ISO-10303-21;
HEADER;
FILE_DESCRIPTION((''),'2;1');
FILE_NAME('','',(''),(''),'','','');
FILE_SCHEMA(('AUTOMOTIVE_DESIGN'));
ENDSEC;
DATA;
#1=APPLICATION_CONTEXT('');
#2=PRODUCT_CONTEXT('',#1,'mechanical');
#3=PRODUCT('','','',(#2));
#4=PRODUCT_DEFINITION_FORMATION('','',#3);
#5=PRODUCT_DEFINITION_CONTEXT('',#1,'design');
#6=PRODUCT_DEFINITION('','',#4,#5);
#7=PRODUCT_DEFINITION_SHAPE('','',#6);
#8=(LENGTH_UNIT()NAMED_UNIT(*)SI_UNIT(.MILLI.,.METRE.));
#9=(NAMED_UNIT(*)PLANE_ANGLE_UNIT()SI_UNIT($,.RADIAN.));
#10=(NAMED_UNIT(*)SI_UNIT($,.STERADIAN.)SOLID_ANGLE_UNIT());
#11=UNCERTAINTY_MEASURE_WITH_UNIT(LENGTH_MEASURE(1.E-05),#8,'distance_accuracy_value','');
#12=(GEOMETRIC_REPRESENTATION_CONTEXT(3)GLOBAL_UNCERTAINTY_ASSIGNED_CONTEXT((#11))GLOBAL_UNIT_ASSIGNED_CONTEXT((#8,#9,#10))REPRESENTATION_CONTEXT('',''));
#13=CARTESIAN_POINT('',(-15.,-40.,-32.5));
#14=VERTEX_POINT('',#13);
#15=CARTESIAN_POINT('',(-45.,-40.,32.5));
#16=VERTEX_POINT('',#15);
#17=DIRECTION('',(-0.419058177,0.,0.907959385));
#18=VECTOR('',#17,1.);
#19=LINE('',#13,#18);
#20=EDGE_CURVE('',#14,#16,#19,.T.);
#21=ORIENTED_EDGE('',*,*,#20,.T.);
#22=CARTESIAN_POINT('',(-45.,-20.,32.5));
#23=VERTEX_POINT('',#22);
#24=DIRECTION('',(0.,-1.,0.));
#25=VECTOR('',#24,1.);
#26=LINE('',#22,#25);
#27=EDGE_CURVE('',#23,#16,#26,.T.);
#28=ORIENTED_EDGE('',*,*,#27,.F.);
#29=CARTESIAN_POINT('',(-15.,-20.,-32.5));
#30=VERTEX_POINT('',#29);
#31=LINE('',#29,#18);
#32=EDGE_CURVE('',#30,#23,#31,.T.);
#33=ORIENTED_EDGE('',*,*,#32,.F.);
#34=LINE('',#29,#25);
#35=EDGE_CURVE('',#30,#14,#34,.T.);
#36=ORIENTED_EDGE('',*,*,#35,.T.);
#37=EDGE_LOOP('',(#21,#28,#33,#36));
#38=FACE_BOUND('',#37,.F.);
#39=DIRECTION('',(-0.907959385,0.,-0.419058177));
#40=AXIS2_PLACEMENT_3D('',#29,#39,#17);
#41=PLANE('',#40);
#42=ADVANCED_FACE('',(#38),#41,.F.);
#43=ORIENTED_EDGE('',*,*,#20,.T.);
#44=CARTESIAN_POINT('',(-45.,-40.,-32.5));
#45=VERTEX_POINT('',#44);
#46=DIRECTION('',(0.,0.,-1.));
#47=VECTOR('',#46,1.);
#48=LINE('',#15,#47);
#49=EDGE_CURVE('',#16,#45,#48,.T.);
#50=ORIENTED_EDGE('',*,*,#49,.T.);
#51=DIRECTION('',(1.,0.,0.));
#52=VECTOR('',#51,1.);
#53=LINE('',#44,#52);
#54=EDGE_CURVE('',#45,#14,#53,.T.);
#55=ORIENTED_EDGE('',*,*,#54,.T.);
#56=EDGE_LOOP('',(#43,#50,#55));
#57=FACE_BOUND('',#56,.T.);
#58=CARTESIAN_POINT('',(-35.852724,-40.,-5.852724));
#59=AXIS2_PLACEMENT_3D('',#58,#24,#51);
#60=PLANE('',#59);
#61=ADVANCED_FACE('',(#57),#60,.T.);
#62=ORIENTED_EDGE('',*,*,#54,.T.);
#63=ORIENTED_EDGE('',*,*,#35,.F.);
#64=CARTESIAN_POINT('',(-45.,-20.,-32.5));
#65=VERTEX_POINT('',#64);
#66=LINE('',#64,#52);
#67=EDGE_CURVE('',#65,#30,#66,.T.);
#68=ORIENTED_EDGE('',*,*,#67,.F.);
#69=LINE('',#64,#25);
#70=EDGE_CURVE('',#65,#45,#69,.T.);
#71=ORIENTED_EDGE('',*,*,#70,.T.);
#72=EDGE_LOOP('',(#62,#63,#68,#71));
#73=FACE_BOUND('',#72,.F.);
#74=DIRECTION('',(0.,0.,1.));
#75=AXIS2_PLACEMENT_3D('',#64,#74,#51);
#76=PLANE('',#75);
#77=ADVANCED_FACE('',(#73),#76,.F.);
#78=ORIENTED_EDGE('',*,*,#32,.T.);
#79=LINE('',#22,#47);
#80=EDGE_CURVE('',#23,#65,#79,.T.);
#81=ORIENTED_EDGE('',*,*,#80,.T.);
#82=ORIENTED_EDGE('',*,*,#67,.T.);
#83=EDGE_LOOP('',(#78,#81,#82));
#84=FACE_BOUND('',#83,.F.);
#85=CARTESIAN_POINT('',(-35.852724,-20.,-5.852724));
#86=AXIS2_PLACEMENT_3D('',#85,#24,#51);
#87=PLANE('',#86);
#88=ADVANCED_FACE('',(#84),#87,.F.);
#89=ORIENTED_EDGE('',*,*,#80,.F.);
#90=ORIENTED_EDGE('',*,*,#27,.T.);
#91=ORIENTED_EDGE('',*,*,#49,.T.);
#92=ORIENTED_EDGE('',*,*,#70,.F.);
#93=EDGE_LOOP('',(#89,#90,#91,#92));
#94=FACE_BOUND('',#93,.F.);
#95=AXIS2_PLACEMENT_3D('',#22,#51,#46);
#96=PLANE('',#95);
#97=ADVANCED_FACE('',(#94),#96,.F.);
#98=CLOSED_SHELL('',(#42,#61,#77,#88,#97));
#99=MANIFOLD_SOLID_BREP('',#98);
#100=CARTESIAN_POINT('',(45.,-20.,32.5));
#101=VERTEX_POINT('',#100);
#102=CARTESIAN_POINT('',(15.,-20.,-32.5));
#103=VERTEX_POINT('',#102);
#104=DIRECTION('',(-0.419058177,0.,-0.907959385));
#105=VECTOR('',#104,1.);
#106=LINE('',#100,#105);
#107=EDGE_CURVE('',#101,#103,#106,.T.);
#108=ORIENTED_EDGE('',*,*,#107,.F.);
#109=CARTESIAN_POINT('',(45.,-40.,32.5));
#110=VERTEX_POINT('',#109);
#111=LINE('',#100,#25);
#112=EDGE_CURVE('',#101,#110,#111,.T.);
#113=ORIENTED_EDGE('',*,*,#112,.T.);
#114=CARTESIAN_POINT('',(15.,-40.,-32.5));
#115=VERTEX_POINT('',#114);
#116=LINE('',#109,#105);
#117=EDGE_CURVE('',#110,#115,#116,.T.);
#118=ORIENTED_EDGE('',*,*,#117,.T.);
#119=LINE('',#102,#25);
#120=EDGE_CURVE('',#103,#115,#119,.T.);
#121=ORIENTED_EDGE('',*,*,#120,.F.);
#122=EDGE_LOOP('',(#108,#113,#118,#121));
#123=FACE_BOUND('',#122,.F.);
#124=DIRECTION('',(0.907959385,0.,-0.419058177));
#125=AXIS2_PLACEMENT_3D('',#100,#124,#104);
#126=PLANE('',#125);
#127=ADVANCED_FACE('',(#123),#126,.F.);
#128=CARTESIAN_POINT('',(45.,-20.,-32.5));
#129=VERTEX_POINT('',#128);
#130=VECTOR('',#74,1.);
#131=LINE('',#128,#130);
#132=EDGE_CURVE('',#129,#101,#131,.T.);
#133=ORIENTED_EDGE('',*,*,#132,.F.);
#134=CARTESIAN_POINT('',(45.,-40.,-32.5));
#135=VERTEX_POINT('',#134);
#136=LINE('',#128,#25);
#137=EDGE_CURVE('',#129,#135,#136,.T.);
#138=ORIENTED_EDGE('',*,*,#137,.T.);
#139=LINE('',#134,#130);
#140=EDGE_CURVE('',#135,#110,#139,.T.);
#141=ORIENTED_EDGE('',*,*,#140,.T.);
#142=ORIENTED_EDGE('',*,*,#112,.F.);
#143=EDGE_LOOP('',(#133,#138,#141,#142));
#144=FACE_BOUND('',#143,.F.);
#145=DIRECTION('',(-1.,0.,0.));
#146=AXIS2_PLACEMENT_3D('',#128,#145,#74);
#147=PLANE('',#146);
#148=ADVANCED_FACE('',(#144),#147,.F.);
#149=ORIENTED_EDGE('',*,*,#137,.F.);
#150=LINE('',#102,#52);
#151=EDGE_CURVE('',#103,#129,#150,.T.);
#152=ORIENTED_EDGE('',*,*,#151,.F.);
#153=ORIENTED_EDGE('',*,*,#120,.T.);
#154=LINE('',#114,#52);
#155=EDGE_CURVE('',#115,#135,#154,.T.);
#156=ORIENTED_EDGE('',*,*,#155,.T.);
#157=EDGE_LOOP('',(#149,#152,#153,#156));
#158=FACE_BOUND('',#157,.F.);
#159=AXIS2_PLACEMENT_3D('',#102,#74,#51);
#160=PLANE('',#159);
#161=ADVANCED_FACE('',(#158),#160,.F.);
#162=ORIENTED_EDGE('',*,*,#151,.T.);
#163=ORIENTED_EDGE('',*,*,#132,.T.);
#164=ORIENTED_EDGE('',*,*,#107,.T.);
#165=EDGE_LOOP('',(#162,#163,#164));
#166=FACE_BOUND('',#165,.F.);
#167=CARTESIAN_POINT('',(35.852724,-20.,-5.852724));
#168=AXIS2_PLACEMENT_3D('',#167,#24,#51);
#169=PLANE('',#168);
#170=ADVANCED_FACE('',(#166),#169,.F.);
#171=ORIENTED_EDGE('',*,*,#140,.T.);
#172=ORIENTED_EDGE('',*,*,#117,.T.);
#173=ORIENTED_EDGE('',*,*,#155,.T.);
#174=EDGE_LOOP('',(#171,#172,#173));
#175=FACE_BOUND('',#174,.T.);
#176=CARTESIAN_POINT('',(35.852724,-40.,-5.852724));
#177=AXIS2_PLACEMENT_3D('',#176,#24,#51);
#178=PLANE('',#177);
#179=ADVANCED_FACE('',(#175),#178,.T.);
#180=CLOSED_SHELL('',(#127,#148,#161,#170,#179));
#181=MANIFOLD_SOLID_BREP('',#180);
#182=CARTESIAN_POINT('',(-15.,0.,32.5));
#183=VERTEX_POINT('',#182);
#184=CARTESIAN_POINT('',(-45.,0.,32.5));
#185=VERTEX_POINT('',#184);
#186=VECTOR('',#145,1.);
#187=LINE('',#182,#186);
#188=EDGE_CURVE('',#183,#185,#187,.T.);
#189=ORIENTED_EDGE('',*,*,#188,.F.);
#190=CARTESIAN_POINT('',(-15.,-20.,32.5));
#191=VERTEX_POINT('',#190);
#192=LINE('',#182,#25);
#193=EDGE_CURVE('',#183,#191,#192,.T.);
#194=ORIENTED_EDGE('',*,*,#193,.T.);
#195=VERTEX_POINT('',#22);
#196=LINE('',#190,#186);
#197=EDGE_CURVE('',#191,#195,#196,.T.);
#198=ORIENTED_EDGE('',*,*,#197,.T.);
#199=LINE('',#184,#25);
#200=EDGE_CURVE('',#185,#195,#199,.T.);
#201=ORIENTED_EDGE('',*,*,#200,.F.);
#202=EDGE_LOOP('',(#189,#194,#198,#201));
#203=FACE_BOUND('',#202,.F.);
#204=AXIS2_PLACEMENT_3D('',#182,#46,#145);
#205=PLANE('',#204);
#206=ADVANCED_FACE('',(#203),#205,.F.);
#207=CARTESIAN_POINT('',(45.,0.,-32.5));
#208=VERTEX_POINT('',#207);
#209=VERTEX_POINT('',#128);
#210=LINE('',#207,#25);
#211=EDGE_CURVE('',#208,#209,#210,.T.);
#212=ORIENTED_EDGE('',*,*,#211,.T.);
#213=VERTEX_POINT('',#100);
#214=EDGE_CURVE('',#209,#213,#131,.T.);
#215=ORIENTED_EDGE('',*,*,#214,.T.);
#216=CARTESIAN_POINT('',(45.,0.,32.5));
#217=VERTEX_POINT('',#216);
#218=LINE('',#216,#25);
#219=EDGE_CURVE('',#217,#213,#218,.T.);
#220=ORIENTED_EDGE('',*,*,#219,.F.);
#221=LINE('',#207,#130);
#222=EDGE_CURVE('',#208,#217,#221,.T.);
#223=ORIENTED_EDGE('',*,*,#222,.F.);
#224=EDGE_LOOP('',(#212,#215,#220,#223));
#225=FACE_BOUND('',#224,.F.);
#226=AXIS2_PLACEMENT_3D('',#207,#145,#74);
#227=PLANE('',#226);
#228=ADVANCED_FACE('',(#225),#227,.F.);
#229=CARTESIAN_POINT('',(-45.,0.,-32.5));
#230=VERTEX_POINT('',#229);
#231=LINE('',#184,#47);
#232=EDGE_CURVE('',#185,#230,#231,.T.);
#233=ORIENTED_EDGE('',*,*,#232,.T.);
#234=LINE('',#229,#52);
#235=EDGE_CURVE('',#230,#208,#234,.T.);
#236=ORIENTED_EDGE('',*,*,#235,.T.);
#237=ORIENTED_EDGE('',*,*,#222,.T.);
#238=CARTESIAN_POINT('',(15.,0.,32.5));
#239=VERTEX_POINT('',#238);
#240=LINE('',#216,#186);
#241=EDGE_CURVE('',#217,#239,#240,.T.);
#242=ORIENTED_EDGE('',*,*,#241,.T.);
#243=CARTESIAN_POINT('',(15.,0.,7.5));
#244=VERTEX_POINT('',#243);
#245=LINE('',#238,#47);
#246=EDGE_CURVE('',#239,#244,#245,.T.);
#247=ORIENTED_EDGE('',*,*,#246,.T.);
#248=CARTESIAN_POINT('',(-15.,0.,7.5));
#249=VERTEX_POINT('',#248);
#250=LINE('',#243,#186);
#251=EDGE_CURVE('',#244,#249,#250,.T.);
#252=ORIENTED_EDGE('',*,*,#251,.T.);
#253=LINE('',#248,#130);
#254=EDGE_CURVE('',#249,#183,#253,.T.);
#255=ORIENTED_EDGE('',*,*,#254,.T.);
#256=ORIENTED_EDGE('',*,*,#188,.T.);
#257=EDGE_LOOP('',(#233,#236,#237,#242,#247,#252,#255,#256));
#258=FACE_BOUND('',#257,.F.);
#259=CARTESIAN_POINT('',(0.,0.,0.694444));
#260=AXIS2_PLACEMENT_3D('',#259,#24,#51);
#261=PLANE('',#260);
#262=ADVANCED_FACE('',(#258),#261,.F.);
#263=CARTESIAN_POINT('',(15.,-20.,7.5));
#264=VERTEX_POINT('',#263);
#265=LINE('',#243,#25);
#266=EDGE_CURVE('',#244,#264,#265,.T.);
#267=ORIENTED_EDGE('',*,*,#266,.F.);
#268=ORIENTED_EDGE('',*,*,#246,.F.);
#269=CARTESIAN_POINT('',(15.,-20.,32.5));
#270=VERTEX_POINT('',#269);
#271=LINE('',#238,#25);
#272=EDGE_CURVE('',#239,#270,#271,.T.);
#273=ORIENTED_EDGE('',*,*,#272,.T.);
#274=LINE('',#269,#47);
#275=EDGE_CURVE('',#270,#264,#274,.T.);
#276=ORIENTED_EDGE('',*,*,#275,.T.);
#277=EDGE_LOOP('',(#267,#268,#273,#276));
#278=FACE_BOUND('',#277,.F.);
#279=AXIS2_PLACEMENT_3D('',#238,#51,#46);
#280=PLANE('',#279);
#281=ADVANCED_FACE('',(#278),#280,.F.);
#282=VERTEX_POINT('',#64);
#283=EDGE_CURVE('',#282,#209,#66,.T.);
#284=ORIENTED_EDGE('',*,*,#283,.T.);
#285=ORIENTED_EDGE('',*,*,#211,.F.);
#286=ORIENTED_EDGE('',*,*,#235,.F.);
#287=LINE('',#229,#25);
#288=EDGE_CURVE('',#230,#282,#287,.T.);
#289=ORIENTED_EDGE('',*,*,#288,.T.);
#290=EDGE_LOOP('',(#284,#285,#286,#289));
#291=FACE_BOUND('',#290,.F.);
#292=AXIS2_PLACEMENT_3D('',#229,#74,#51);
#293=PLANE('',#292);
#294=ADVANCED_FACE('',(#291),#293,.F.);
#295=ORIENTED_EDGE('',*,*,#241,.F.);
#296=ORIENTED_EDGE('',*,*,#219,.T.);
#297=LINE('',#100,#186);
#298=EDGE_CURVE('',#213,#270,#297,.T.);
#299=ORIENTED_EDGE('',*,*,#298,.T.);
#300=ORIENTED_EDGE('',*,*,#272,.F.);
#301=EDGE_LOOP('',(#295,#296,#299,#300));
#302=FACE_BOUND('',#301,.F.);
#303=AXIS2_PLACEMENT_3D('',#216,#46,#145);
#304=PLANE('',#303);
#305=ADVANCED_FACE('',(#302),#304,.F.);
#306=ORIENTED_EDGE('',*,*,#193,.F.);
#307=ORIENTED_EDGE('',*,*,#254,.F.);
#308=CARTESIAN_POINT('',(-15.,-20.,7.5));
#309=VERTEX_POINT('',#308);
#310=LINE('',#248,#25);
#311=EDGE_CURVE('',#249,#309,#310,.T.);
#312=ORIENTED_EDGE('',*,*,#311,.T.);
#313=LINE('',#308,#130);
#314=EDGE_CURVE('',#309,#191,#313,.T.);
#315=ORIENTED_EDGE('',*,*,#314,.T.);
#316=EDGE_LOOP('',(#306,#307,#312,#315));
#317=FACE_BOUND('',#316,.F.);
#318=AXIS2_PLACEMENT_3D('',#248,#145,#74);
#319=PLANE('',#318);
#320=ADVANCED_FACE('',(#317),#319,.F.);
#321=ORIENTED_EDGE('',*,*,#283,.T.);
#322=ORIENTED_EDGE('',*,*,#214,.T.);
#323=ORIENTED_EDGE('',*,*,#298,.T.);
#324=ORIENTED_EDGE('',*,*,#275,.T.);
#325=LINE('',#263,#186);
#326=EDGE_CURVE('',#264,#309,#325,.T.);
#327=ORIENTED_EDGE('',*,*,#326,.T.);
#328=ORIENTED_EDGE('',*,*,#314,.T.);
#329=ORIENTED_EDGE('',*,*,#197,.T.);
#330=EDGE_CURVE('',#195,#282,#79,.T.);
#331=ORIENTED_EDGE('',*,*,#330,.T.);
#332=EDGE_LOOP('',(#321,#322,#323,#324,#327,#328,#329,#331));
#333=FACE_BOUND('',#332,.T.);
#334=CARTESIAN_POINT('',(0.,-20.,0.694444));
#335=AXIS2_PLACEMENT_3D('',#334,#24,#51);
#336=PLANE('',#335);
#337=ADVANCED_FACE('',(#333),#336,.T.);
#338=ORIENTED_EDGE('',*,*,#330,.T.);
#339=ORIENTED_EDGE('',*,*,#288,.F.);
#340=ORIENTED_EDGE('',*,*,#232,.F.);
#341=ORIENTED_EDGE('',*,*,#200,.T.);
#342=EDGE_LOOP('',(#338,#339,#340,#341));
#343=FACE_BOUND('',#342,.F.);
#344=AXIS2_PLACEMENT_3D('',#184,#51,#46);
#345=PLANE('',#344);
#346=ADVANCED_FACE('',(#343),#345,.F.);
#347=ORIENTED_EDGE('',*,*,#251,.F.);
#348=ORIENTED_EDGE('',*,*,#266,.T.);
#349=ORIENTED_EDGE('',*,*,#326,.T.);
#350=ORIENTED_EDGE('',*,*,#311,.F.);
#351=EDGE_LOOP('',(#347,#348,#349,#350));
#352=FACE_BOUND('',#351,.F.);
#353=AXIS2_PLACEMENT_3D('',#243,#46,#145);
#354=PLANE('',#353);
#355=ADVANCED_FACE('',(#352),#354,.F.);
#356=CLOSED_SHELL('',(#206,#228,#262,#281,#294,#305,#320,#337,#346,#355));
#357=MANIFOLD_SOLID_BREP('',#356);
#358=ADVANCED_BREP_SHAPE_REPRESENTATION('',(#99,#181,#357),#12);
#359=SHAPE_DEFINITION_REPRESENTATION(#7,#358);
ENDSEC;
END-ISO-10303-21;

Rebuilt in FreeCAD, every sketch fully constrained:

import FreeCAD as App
import Part
import Sketcher

V = App.Vector

doc = App.newDocument("Part")
params = doc.addObject("Spreadsheet::Sheet", "Params")
for row, (alias, value) in enumerate([
    ("sketch1_width", "30 mm"),
    ("sketch1_height", "25 mm"),
    ("sketch1_height2", "65 mm"),
    ("pad1_length", "20 mm"),
    ("sketch2_width", "30 mm"),
    ("sketch2_height", "65 mm"),
    ("pad2_length", "20 mm"),
], start=1):
    params.set(f"A{row}", alias)
    params.set(f"B{row}", "=" + value)
    params.setAlias(f"B{row}", alias)

body = doc.addObject("PartDesign::Body", "Body")

# Sketch on XZ plane
sketch1 = body.newObject("Sketcher::SketchObject", "Sketch")
sketch1.AttachmentSupport = (doc.getObject("XZ_Plane"), [""])
sketch1.MapMode = "FlatFace"
sketch1.addGeometry([
    Part.LineSegment(V(45, 32, 0), V(15, 32, 0)),  # 0
    Part.LineSegment(V(15, 32, 0), V(15, 8, 0)),  # 1
    Part.LineSegment(V(15, 8, 0), V(-15, 8, 0)),  # 2
    Part.LineSegment(V(-15, 8, 0), V(-15, 32, 0)),  # 3
    Part.LineSegment(V(-15, 32, 0), V(-45, 32, 0)),  # 4
    Part.LineSegment(V(-45, 32, 0), V(-45, -32, 0)),  # 5
    Part.LineSegment(V(-45, -32, 0), V(45, -32, 0)),  # 6
    Part.LineSegment(V(45, -32, 0), V(45, 32, 0)),  # 7
], False)
sketch1.addConstraint([
    Sketcher.Constraint("Coincident", 0, 2, 1, 1),
    Sketcher.Constraint("Coincident", 1, 2, 2, 1),
    Sketcher.Constraint("Coincident", 2, 2, 3, 1),
    Sketcher.Constraint("Coincident", 3, 2, 4, 1),
    Sketcher.Constraint("Coincident", 4, 2, 5, 1),
    Sketcher.Constraint("Coincident", 5, 2, 6, 1),
    Sketcher.Constraint("Coincident", 6, 2, 7, 1),
    Sketcher.Constraint("Coincident", 7, 2, 0, 1),
    Sketcher.Constraint("Horizontal", 0),
    Sketcher.Constraint("Vertical", 1),
    Sketcher.Constraint("Horizontal", 2),
    Sketcher.Constraint("Vertical", 3),
    Sketcher.Constraint("Horizontal", 4),
    Sketcher.Constraint("Vertical", 5),
    Sketcher.Constraint("Horizontal", 6),
    Sketcher.Constraint("Vertical", 7),
    Sketcher.Constraint("Symmetric", 4, 2, 6, 2, -1, 1),
    Sketcher.Constraint("Symmetric", 0, 2, 3, 2, -2),
    Sketcher.Constraint("Equal", 0, 2),
    Sketcher.Constraint("DistanceX", 0, 2, 0, 1, 30.0),
    Sketcher.Constraint("DistanceY", 1, 2, 1, 1, 25.0),
    Sketcher.Constraint("DistanceY", 5, 2, 5, 1, 65.0),
])
sketch1.setExpression("Constraints[19]", "Params.sketch1_width")
sketch1.setExpression("Constraints[20]", "Params.sketch1_height")
sketch1.setExpression("Constraints[21]", "Params.sketch1_height2")
pad1 = body.newObject("PartDesign::Pad", "Pad")
pad1.Profile = sketch1
pad1.setExpression("Length", "Params.pad1_length")
body2 = doc.addObject("PartDesign::Body", "Body001")
body2.AllowCompound = True

# Sketch on XZ plane
sketch2 = body2.newObject("Sketcher::SketchObject", "Sketch001")
sketch2.AttachmentSupport = (doc.getObject("XZ_Plane001"), [""])
sketch2.MapMode = "FlatFace"
sketch2.AttachmentOffset = App.Placement(V(0, 0, 20), App.Rotation())
sketch2.addGeometry([
    Part.LineSegment(V(-15, -32, 0), V(-45, 32, 0)),  # 0
    Part.LineSegment(V(-45, 32, 0), V(-45, -32, 0)),  # 1
    Part.LineSegment(V(-45, -32, 0), V(-15, -32, 0)),  # 2
    Part.LineSegment(V(45, 32, 0), V(15, -32, 0)),  # 3
    Part.LineSegment(V(15, -32, 0), V(45, -32, 0)),  # 4
    Part.LineSegment(V(45, -32, 0), V(45, 32, 0)),  # 5
], False)
sketch2.addConstraint([
    Sketcher.Constraint("Coincident", 0, 2, 1, 1),
    Sketcher.Constraint("Coincident", 1, 2, 2, 1),
    Sketcher.Constraint("Coincident", 2, 2, 0, 1),
    Sketcher.Constraint("Coincident", 3, 2, 4, 1),
    Sketcher.Constraint("Coincident", 4, 2, 5, 1),
    Sketcher.Constraint("Coincident", 5, 2, 3, 1),
    Sketcher.Constraint("Vertical", 1),
    Sketcher.Constraint("Horizontal", 2),
    Sketcher.Constraint("Horizontal", 4),
    Sketcher.Constraint("Vertical", 5),
    Sketcher.Constraint("Symmetric", 0, 2, 4, 2, -1, 1),
    Sketcher.Constraint("Symmetric", 2, 2, 3, 2, -2),
    Sketcher.Constraint("Horizontal", 0, 2, 5, 2),
    Sketcher.Constraint("DistanceX", 2, 1, 2, 2, 30.0),
    Sketcher.Constraint("DistanceY", 1, 2, 1, 1, 65.0),
    Sketcher.Constraint("DistanceX", 0, 2, -1, 1, 45.0),
])
sketch2.setExpression("Constraints[13]", "Params.sketch2_width")
sketch2.setExpression("Constraints[14]", "Params.sketch2_height")
pad2 = body2.newObject("PartDesign::Pad", "Pad001")
pad2.Profile = sketch2
pad2.setExpression("Length", "Params.pad2_length")

doc.recompute()
